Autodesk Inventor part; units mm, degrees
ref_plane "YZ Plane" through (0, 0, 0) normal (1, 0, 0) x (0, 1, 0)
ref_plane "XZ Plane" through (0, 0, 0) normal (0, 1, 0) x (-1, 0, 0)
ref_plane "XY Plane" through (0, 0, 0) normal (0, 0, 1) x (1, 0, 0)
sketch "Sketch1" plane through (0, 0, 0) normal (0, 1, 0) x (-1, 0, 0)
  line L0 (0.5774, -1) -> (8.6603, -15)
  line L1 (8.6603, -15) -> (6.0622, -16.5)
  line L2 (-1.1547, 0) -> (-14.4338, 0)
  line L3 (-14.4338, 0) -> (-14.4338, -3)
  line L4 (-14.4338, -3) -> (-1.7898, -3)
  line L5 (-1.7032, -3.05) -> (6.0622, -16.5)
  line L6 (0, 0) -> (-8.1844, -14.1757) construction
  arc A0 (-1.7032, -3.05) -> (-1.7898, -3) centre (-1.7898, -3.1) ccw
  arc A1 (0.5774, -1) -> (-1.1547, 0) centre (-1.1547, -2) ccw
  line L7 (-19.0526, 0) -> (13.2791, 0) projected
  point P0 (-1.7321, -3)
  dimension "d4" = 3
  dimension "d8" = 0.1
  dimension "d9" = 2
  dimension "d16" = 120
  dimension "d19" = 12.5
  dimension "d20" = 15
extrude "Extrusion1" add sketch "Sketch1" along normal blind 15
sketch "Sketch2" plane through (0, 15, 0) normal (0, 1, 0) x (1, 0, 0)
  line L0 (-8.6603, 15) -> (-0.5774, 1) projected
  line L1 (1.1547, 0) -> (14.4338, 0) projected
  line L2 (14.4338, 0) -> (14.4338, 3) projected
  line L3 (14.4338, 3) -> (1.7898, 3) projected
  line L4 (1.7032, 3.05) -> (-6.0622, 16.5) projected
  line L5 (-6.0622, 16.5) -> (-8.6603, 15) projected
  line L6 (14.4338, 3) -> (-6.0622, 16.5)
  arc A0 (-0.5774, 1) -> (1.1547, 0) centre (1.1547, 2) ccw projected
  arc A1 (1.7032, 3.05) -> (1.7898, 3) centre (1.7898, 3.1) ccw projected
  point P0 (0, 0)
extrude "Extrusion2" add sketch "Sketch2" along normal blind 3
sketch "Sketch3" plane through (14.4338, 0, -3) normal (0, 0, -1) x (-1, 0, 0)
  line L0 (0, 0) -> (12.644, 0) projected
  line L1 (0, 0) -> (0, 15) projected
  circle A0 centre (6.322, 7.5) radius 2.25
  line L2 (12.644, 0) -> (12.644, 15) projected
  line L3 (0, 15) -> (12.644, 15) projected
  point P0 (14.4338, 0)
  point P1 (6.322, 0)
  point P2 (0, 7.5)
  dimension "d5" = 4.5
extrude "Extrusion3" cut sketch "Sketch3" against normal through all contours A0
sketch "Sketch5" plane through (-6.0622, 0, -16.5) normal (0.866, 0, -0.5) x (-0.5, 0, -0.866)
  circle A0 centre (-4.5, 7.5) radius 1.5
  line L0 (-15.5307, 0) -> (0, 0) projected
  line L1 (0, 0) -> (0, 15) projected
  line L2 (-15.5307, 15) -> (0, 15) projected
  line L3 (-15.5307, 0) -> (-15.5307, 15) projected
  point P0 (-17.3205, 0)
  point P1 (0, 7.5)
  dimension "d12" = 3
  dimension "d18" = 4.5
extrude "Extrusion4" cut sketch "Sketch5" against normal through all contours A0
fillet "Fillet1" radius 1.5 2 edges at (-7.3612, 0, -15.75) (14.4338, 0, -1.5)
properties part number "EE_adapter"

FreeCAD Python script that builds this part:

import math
import FreeCAD as App
import Part
import Sketcher

V = App.Vector
Q = App.Units.Quantity


def edges_at(feature, points):
    """Names of the edges that pass closest to the given points."""
    edges = feature.Shape.Edges
    near = lambda p: min(range(len(edges)), key=lambda i: edges[i].distToShape(Part.Vertex(*p))[0])
    return sorted({f"Edge{near(p) + 1}" for p in points})

doc = App.newDocument("Part")
body = doc.addObject("PartDesign::Body", "Body")

# Sketch on XZ plane
sketch1 = doc.addObject("Sketcher::SketchObject", "Sketch")
body.addObject(sketch1)
sketch1.AttachmentSupport = (doc.XZ_Plane, [""])
sketch1.MapMode = "FlatFace"
sketch1.addGeometry(Part.LineSegment(V(-8.66, -15, 0), V(-0.58, -1, 0)), False)
sketch1.addGeometry(Part.ArcOfCircle(Part.Circle(V(1.15, -2, 0), V(0, 0, 1), 2), math.radians(90), math.radians(150)), False)
sketch1.addGeometry(Part.LineSegment(V(1.15, 0, 0), V(14.43, 0, 0)), False)
sketch1.addGeometry(Part.LineSegment(V(14.43, 0, 0), V(14.43, -3, 0)), False)
sketch1.addGeometry(Part.LineSegment(V(14.43, -3, 0), V(1.79, -3, 0)), False)
sketch1.addGeometry(Part.ArcOfCircle(Part.Circle(V(1.79, -3.1, 0), V(0, 0, 1), 0.1), math.radians(90), math.radians(150)), False)
sketch1.addGeometry(Part.LineSegment(V(1.7, -3.05, 0), V(-6.06, -16.5, 0)), False)
sketch1.addGeometry(Part.LineSegment(V(-6.06, -16.5, 0), V(-8.66, -15, 0)), False)
sketch1.addConstraint(Sketcher.Constraint("Tangent", 0, 2, 1, 2))
sketch1.addConstraint(Sketcher.Constraint("Tangent", 1, 1, 2, 1))
sketch1.addConstraint(Sketcher.Constraint("Coincident", 2, 2, 3, 1))
sketch1.addConstraint(Sketcher.Constraint("Coincident", 3, 2, 4, 1))
sketch1.addConstraint(Sketcher.Constraint("Tangent", 4, 2, 5, 1))
sketch1.addConstraint(Sketcher.Constraint("Tangent", 5, 2, 6, 1))
sketch1.addConstraint(Sketcher.Constraint("Coincident", 6, 2, 7, 1))
sketch1.addConstraint(Sketcher.Constraint("Coincident", 7, 2, 0, 1))
sketch1.addConstraint(Sketcher.Constraint("Horizontal", 2))
sketch1.addConstraint(Sketcher.Constraint("Vertical", 3))
sketch1.addConstraint(Sketcher.Constraint("Horizontal", 4))
sketch1.addConstraint(Sketcher.Constraint("PointOnObject", 1, 1, -1))
sketch1.addConstraint(Sketcher.Constraint("Parallel", 0, 6))
sketch1.addConstraint(Sketcher.Constraint("Perpendicular", 6, 7))
sketch1.addConstraint(Sketcher.Constraint("Radius", 1, Q("2 mm")))
sketch1.addConstraint(Sketcher.Constraint("Radius", 5, Q("0.1 mm")))
sketch1.addConstraint(Sketcher.Constraint("DistanceY", 3, 2, 3, 1, Q("3 mm")))
sketch1.addConstraint(Sketcher.Constraint("Angle", 6, Q("-120.0001 deg")))
sketch1.addConstraint(Sketcher.Constraint("Distance", 7, Q("3 mm")))
sketch1.addConstraint(Sketcher.Constraint("DistanceY", 7, 2, -1, 1, Q("15 mm")))
sketch1.addConstraint(Sketcher.Constraint("DistanceX", 2, 1, 2, 2, Q("13.279 mm")))
sketch1.addConstraint(Sketcher.Constraint("DistanceX", -1, 1, 1, 3, Q("1.1547 mm")))
pad1 = doc.addObject("PartDesign::Pad", "Pad")
body.addObject(pad1)
pad1.Profile = sketch1
pad1.Length = 15
pad1.Reversed = True

# Sketch on XZ plane
sketch2 = doc.addObject("Sketcher::SketchObject", "Sketch001")
body.addObject(sketch2)
sketch2.AttachmentSupport = (doc.XZ_Plane, [""])
sketch2.MapMode = "FlatFace"
sketch2.AttachmentOffset = App.Placement(V(0, 0, -15), App.Rotation())
sketch2.addGeometry(Part.LineSegment(V(-6.1, -16.5, 0), V(-8.7, -15, 0)), False)
sketch2.addGeometry(Part.LineSegment(V(-8.7, -15, 0), V(-0.6, -1, 0)), False)
sketch2.addGeometry(Part.ArcOfCircle(Part.Circle(V(1.2, -2, 0), V(0, 0, 1), 2), math.radians(90), math.radians(150)), False)
sketch2.addGeometry(Part.LineSegment(V(1.2, 0, 0), V(14.4, 0, 0)), False)
sketch2.addGeometry(Part.LineSegment(V(14.4, 0, 0), V(14.4, -3, 0)), False)
sketch2.addGeometry(Part.LineSegment(V(14.4, -3, 0), V(-6.1, -16.5, 0)), False)
sketch2.addConstraint(Sketcher.Constraint("Coincident", 0, 2, 1, 1))
sketch2.addConstraint(Sketcher.Constraint("Tangent", 1, 2, 2, 2))
sketch2.addConstraint(Sketcher.Constraint("Tangent", 2, 1, 3, 1))
sketch2.addConstraint(Sketcher.Constraint("Coincident", 3, 2, 4, 1))
sketch2.addConstraint(Sketcher.Constraint("Coincident", 4, 2, 5, 1))
sketch2.addConstraint(Sketcher.Constraint("Coincident", 5, 2, 0, 1))
sketch2.addConstraint(Sketcher.Constraint("Horizontal", 3))
sketch2.addConstraint(Sketcher.Constraint("Vertical", 4))
sketch2.addConstraint(Sketcher.Constraint("PointOnObject", 2, 1, -1))
sketch2.addConstraint(Sketcher.Constraint("Perpendicular", 0, 1))
sketch2.addConstraint(Sketcher.Constraint("Radius", 2, Q("2 mm")))
sketch2.addConstraint(Sketcher.Constraint("DistanceY", 4, 2, 4, 1, Q("3 mm")))
sketch2.addConstraint(Sketcher.Constraint("Angle", 0, Q("150.0002 deg")))
sketch2.addConstraint(Sketcher.Constraint("Distance", 0, Q("3 mm")))
sketch2.addConstraint(Sketcher.Constraint("DistanceY", 0, 2, -1, 1, Q("15 mm")))
sketch2.addConstraint(Sketcher.Constraint("DistanceX", 3, 1, 3, 2, Q("13.279 mm")))
sketch2.addConstraint(Sketcher.Constraint("DistanceX", -1, 1, 2, 3, Q("1.1547 mm")))
pad2 = doc.addObject("PartDesign::Pad", "Pad001")
body.addObject(pad2)
pad2.Profile = sketch2
pad2.Length = 3
pad2.Reversed = True

# Sketch on XY plane
sketch3 = doc.addObject("Sketcher::SketchObject", "Sketch002")
body.addObject(sketch3)
sketch3.AttachmentSupport = (doc.XY_Plane, [""])
sketch3.MapMode = "FlatFace"
sketch3.AttachmentOffset = App.Placement(V(0, 0, -3), App.Rotation())
sketch3.addGeometry(Part.Circle(V(8.1, 7.5, 0), V(0, 0, 1), 2.2), False)
sketch3.addConstraint(Sketcher.Constraint("Diameter", 0, Q("4.5 mm")))
sketch3.addConstraint(Sketcher.Constraint("DistanceY", -1, 1, 0, 3, Q("7.5 mm")))
sketch3.addConstraint(Sketcher.Constraint("DistanceX", -1, 1, 0, 3, Q("8.1118 mm")))
pocket1 = doc.addObject("PartDesign::Pocket", "Pocket")
body.addObject(pocket1)
pocket1.Profile = sketch3
pocket1.Type = "ThroughAll"
pocket1.Reversed = True

# Sketch on an angled plane
sketch4 = doc.addObject("Sketcher::SketchObject", "Sketch003")
body.addObject(sketch4)
sketch4.Placement = App.Placement(V(-6.0622, 0, -16.5), App.Rotation(V(-0.5, 0, -0.866025404), V(0, 1, 0), V(0.866025404, 0, -0.5), "ZXY"))
sketch4.addGeometry(Part.Circle(V(-4.5, 7.5, 0), V(0, 0, 1), 1.5), False)
sketch4.addConstraint(Sketcher.Constraint("Diameter", 0, Q("3 mm")))
sketch4.addConstraint(Sketcher.Constraint("DistanceX", 0, 3, -1, 1, Q("4.5 mm")))
sketch4.addConstraint(Sketcher.Constraint("DistanceY", -1, 1, 0, 3, Q("7.5 mm")))
pocket2 = doc.addObject("PartDesign::Pocket", "Pocket001")
body.addObject(pocket2)
pocket2.Profile = sketch4
pocket2.Type = "ThroughAll"
doc.recompute()

fillet = doc.addObject("PartDesign::Fillet", "Fillet")
body.addObject(fillet)
fillet.Base = (pocket2, edges_at(pocket2, [(-7.361, 0, -15.75), (14.434, 0, -1.5)]))
fillet.Radius = 1.5

doc.recompute()
